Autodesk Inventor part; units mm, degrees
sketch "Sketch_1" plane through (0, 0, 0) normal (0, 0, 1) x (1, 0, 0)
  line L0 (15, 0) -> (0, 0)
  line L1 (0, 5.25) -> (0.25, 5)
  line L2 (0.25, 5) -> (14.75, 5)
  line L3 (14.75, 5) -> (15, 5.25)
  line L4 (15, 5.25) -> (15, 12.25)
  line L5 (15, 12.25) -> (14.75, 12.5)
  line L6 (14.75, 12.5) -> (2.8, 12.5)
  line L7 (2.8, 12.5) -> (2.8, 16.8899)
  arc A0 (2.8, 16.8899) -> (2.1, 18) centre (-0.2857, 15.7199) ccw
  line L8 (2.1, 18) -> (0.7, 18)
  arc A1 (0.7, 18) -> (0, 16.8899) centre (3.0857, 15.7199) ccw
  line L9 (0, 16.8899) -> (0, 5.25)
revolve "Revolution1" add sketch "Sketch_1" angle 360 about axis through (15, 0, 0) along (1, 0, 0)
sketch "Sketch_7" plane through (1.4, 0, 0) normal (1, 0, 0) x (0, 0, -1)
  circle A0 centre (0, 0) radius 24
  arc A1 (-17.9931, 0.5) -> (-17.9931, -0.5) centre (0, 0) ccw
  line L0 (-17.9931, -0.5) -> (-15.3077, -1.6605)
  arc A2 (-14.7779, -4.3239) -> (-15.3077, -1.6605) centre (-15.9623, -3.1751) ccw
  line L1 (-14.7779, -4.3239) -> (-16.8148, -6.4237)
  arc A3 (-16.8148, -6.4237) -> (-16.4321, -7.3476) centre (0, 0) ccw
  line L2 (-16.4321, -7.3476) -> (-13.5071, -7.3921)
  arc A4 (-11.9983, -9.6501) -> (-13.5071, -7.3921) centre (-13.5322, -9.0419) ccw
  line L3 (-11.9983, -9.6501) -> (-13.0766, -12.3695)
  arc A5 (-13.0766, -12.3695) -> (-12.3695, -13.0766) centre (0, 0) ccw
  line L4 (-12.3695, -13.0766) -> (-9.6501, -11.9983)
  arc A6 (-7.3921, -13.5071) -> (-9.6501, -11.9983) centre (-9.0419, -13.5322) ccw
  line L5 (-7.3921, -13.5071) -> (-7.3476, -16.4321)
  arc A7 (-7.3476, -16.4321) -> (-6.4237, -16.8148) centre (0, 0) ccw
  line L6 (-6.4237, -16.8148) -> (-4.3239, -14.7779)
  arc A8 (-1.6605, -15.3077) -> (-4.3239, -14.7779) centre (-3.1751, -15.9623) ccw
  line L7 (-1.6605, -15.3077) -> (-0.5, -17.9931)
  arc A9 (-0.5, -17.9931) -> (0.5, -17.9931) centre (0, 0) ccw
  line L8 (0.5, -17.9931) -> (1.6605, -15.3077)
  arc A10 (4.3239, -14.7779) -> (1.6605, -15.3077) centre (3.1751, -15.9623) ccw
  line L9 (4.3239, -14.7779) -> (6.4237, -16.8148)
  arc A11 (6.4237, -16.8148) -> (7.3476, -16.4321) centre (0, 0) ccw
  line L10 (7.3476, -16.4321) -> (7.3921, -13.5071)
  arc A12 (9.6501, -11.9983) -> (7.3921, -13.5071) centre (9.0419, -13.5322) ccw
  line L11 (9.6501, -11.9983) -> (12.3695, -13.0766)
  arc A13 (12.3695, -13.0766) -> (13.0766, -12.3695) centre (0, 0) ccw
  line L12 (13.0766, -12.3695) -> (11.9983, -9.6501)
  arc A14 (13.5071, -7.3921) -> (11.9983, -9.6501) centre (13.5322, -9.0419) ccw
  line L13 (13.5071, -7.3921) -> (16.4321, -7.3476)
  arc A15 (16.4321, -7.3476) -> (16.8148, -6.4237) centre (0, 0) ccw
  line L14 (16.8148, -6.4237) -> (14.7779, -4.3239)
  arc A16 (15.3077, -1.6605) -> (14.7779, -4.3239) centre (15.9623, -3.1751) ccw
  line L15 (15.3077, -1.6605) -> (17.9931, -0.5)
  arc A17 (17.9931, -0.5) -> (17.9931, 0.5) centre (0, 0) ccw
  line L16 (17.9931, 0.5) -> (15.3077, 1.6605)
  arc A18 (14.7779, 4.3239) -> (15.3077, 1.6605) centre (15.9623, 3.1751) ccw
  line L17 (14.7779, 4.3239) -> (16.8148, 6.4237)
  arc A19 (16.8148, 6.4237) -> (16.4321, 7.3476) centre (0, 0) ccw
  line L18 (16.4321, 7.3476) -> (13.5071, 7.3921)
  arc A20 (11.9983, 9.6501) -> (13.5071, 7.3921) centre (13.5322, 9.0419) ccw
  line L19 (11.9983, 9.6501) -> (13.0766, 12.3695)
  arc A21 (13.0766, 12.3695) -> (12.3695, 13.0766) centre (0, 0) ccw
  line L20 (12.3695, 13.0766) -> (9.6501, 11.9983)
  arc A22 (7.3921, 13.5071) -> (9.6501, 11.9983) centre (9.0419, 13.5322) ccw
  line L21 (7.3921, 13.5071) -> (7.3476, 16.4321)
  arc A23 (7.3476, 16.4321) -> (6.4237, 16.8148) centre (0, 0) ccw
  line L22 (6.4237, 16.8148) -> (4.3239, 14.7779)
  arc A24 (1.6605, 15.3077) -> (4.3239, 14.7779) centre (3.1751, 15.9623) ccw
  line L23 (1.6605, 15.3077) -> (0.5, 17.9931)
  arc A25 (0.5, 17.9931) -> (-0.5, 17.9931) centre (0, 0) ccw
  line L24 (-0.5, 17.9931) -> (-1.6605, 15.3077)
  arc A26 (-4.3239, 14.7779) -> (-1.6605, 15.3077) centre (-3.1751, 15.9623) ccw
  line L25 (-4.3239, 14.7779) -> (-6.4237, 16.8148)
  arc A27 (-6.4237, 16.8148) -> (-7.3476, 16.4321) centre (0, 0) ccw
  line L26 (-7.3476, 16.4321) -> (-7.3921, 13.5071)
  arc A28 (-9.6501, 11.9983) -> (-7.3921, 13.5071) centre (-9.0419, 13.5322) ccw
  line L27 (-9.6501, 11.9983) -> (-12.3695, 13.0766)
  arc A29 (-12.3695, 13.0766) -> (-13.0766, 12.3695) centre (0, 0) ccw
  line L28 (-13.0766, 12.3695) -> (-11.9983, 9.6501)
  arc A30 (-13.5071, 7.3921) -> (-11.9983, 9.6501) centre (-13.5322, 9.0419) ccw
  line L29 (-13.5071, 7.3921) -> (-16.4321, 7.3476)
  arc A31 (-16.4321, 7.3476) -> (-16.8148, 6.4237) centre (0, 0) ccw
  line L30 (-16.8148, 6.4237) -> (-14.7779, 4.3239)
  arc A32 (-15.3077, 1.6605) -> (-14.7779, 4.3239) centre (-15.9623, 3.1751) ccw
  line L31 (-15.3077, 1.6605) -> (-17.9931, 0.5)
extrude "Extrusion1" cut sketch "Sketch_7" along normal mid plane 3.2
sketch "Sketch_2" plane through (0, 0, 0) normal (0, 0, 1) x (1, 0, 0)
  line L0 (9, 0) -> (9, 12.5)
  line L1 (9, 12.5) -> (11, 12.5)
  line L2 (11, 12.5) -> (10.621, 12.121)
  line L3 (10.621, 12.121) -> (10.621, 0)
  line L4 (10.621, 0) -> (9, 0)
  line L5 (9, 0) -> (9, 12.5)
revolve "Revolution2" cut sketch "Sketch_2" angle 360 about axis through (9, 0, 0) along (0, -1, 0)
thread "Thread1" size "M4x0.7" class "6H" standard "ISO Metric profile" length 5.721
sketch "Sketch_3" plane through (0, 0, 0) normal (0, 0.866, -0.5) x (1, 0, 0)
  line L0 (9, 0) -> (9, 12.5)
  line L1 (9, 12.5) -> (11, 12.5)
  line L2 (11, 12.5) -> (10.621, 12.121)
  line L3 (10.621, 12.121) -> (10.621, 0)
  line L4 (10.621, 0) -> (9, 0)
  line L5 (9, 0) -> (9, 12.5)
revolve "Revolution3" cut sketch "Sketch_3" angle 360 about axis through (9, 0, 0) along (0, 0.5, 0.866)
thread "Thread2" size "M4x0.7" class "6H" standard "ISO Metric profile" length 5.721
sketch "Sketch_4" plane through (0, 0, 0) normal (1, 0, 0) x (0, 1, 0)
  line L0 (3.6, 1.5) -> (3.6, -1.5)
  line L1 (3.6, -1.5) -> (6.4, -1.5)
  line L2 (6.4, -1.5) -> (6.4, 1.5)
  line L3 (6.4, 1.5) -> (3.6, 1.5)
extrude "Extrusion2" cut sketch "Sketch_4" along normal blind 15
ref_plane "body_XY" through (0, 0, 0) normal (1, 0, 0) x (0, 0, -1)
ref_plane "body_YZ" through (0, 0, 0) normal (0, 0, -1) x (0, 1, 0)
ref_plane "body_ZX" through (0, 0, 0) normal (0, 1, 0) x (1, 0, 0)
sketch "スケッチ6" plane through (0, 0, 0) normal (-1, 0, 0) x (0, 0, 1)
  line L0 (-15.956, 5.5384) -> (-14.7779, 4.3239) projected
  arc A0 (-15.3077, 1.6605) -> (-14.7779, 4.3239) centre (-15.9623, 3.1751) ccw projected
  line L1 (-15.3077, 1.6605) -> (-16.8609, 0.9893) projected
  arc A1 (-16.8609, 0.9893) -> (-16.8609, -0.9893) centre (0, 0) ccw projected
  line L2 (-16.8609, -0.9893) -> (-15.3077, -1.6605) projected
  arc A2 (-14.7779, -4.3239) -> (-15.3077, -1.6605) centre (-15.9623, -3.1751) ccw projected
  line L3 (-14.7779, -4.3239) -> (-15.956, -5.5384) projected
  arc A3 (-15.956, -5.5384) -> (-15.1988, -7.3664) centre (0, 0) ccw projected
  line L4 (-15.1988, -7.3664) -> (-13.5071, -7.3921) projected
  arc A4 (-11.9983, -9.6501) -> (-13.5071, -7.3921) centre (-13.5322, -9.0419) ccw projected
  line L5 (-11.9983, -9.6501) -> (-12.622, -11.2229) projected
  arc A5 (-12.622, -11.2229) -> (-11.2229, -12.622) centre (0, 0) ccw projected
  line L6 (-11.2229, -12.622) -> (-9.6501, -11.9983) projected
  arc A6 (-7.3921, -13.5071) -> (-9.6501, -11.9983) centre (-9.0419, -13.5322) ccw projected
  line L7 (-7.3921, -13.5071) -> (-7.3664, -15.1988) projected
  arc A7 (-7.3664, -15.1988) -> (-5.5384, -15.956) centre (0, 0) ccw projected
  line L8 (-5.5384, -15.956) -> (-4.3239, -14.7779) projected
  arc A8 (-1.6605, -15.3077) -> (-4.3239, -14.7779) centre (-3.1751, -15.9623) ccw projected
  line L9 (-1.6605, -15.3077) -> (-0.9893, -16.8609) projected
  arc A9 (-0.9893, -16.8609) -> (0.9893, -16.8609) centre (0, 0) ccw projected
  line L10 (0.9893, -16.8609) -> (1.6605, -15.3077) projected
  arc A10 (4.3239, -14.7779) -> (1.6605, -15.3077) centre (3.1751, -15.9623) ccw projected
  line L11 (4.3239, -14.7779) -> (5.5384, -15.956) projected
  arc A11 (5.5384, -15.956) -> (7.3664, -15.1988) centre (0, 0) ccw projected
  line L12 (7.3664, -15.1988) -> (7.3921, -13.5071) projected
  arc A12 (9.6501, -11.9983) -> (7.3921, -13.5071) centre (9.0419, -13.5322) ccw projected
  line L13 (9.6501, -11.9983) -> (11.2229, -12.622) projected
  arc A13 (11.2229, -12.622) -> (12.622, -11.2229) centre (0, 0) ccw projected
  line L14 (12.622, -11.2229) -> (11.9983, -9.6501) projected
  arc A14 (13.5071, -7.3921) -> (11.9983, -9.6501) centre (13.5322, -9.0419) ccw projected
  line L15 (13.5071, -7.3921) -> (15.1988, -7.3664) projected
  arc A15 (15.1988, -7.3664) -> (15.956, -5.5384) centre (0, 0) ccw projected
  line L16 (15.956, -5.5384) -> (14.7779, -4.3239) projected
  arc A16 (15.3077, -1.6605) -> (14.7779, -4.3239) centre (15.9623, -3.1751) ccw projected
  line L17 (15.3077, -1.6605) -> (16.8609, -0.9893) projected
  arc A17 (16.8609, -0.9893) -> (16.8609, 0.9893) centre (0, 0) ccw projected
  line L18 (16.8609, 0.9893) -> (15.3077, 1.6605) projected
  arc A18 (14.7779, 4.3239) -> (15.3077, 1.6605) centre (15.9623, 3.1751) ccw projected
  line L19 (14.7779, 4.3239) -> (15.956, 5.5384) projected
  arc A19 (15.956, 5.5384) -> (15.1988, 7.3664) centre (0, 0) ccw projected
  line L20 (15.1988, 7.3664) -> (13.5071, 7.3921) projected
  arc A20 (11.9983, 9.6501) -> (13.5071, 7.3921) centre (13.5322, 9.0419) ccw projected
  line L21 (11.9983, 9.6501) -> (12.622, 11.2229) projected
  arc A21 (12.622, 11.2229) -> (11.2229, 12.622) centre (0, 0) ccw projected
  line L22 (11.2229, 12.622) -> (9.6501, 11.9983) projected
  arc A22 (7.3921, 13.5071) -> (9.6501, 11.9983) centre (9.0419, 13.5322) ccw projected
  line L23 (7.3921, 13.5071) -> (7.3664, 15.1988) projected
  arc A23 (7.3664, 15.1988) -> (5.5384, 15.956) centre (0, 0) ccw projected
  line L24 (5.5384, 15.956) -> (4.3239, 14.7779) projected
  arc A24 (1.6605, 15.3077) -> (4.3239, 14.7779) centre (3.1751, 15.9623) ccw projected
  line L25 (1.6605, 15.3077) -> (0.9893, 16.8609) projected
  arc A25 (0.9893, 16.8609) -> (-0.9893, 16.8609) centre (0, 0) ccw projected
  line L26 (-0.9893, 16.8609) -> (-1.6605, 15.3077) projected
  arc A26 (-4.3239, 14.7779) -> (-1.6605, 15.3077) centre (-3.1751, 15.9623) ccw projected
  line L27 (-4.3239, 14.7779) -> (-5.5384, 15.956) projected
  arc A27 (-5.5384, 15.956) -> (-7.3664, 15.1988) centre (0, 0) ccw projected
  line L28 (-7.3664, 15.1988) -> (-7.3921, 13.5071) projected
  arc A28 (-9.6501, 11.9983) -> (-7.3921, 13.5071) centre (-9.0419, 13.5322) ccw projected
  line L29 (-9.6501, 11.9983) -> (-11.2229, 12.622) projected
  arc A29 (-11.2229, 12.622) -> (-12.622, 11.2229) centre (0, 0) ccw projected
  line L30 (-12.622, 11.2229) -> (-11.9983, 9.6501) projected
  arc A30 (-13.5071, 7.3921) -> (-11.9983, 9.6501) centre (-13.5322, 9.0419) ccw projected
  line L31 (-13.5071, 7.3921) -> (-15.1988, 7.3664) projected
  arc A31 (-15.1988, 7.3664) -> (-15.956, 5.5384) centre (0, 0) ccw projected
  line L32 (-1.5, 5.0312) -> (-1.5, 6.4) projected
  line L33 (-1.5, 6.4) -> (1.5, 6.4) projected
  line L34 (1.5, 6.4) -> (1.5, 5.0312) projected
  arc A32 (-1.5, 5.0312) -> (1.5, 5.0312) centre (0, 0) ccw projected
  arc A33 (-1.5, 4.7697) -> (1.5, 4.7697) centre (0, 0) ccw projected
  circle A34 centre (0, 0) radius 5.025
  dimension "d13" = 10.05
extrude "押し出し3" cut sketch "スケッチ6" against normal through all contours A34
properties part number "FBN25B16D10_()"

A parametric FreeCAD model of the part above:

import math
import FreeCAD as App
import Part
import Sketcher

V = App.Vector
Q = App.Units.Quantity


def add_polygon(sketch, points):
    """Adds a closed chain of lines whose ends are joined by coincident constraints."""
    first, n = sketch.GeometryCount, len(points)
    for a, b in zip(points, points[1:] + points[:1]):
        sketch.addGeometry(Part.LineSegment(App.Vector(*a, 0), App.Vector(*b, 0)), False)
    for i in range(n):
        sketch.addConstraint(Sketcher.Constraint("Coincident", first + i, 2, first + (i + 1) % n, 1))

doc = App.newDocument("Part")
body = doc.addObject("PartDesign::Body", "Body")

sketch1 = body.newObject("Sketcher::SketchObject", "Sketch")
sketch1.AttachmentSupport = (doc.getObject("XY_Plane"), [""])
sketch1.MapMode = "FlatFace"
sketch1.addGeometry([
    Part.LineSegment(V(0, 16.89, 0), V(0, 5.25, 0)),
    Part.LineSegment(V(0, 5.25, 0), V(0.25, 5, 0)),
    Part.LineSegment(V(0.25, 5, 0), V(14.75, 5, 0)),
    Part.LineSegment(V(14.75, 5, 0), V(15, 5.25, 0)),
    Part.LineSegment(V(15, 5.25, 0), V(15, 12.25, 0)),
    Part.LineSegment(V(15, 12.25, 0), V(14.75, 12.5, 0)),
    Part.LineSegment(V(14.75, 12.5, 0), V(2.8, 12.5, 0)),
    Part.LineSegment(V(2.8, 12.5, 0), V(2.8, 16.89, 0)),
    Part.ArcOfCircle(Part.Circle(V(-0.29, 15.72, 0), V(0, 0, 1), 3.3), math.radians(21), math.radians(44)),
    Part.LineSegment(V(2.1, 18, 0), V(0.7, 18, 0)),
    Part.ArcOfCircle(Part.Circle(V(3.09, 15.72, 0), V(0, 0, 1), 3.3), math.radians(136), math.radians(159)),
], False)
sketch1.addConstraint([
    Sketcher.Constraint("Coincident", 0, 2, 1, 1),
    Sketcher.Constraint("Coincident", 1, 2, 2, 1),
    Sketcher.Constraint("Coincident", 2, 2, 3, 1),
    Sketcher.Constraint("Coincident", 3, 2, 4, 1),
    Sketcher.Constraint("Coincident", 4, 2, 5, 1),
    Sketcher.Constraint("Coincident", 5, 2, 6, 1),
    Sketcher.Constraint("Coincident", 6, 2, 7, 1),
    Sketcher.Constraint("Coincident", 7, 2, 8, 1),
    Sketcher.Constraint("Coincident", 8, 2, 9, 1),
    Sketcher.Constraint("Coincident", 9, 2, 10, 1),
    Sketcher.Constraint("Coincident", 10, 2, 0, 1),
    Sketcher.Constraint("Vertical", 0),
    Sketcher.Constraint("Horizontal", 2),
    Sketcher.Constraint("Vertical", 4),
    Sketcher.Constraint("Horizontal", 6),
    Sketcher.Constraint("Vertical", 7),
    Sketcher.Constraint("Horizontal", 9),
    Sketcher.Constraint("Equal", 8, 10),
    Sketcher.Constraint("PointOnObject", 0, 2, -2),
    Sketcher.Constraint("Perpendicular", 1, 3),
    Sketcher.Constraint("Perpendicular", 3, 5),
    Sketcher.Constraint("Horizontal", 8, 3, 10, 3),
    Sketcher.Constraint("Horizontal", 0, 2, 3, 2),
    Sketcher.Constraint("Horizontal", 7, 2, 10, 2),
    Sketcher.Constraint("Vertical", 2, 2, 5, 2),
    Sketcher.Constraint("Equal", 1, 3),
    Sketcher.Constraint("Radius", 8, Q("3.3 mm")),
    Sketcher.Constraint("DistanceY", 4, 1, 4, 2, Q("7 mm")),
    Sketcher.Constraint("DistanceX", 2, 1, 2, 2, Q("14.5 mm")),
    Sketcher.Constraint("DistanceX", 9, 2, 9, 1, Q("1.4 mm")),
    Sketcher.Constraint("DistanceY", -1, 1, 1, 2, Q("5 mm")),
    Sketcher.Constraint("DistanceX", -1, 1, 3, 2, Q("15 mm")),
    Sketcher.Constraint("DistanceY", -1, 1, 8, 2, Q("18 mm")),
    Sketcher.Constraint("DistanceX", 6, 2, 6, 1, Q("11.95 mm")),
    Sketcher.Constraint("DistanceY", 0, 2, 0, 1, Q("11.64 mm")),
])
revolution = body.newObject("PartDesign::Revolution", "Revolution")
revolution.Profile = sketch1
revolution.ReferenceAxis = (sketch1, ["H_Axis"])
revolution.Angle = 360

sketch2 = body.newObject("Sketcher::SketchObject", "Sketch001")
sketch2.AttachmentSupport = (doc.getObject("YZ_Plane"), [""])
sketch2.MapMode = "FlatFace"
sketch2.AttachmentOffset = App.Placement(V(0, 0, 1.4), App.Rotation())
sketch2.addGeometry([
    Part.Circle(V(0, 0, 0), V(0, 0, 1), 24),
    Part.ArcOfCircle(Part.Circle(V(0, 0, 0), V(0, 0, 1), 18.000046), math.radians(88.40825), math.radians(91.59175)),
    Part.LineSegment(V(0.5, 17.9931, 0), V(1.6605, 15.3077, 0)),
    Part.ArcOfCircle(Part.Circle(V(3.1751, 15.9623, 0), V(0, 0, 1), 1.650004), math.radians(-156.626322), math.radians(-45.874152)),
    Part.LineSegment(V(4.3239, 14.7779, 0), V(6.4237, 16.8148, 0)),
    Part.ArcOfCircle(Part.Circle(V(-0.004053, -0.009413, 0), V(0, 0, 1), 18.010279), math.radians(65.908686), math.radians(69.090457)),
    Part.LineSegment(V(7.3476, 16.4321, 0), V(7.3921, 13.5071, 0)),
    Part.ArcOfCircle(Part.Circle(V(9.0419, 13.5322, 0), V(0, 0, 1), 1.649991), math.radians(-179.128371), math.radians(-68.371395)),
    Part.LineSegment(V(9.6501, 11.9983, 0), V(12.3695, 13.0766, 0)),
    Part.ArcOfCircle(Part.Circle(V(0, 0, 0), V(0, 0, 1), 18.000055), math.radians(43.408266), math.radians(46.591734)),
    Part.LineSegment(V(13.0766, 12.3695, 0), V(11.9983, 9.6501, 0)),
    Part.ArcOfCircle(Part.Circle(V(13.5322, 9.0419, 0), V(0, 0, 1), 1.650078), math.radians(158.371395), math.radians(269.128371)),
    Part.LineSegment(V(13.5071, 7.3921, 0), V(16.4321, 7.3476, 0)),
    Part.ArcOfCircle(Part.Circle(V(0.009511, 0.003786, 0), V(0, 0, 1), 17.989804), math.radians(20.907731), math.radians(24.093125)),
    Part.LineSegment(V(16.8148, 6.4237, 0), V(14.7779, 4.3239, 0)),
    Part.ArcOfCircle(Part.Circle(V(15.9623, 3.1751, 0), V(0, 0, 1), 1.650014), math.radians(135.874152), math.radians(246.626322)),
    Part.LineSegment(V(15.3077, 1.6605, 0), V(17.9931, 0.5, 0)),
    Part.ArcOfCircle(Part.Circle(V(0, 0, 0), V(0, 0, 1), 18.000046), math.radians(-1.59175), math.radians(1.59175)),
    Part.LineSegment(V(17.9931, -0.5, 0), V(15.3077, -1.6605, 0)),
    Part.ArcOfCircle(Part.Circle(V(15.9623, -3.1751, 0), V(0, 0, 1), 1.650004), math.radians(113.373678), math.radians(224.125848)),
    Part.LineSegment(V(14.7779, -4.3239, 0), V(16.8148, -6.4237, 0)),
    Part.ArcOfCircle(Part.Circle(V(-0.009413, 0.004053, 0), V(0, 0, 1), 18.010279), math.radians(-24.091314), math.radians(-20.909543)),
    Part.LineSegment(V(16.4321, -7.3476, 0), V(13.5071, -7.3921, 0)),
    Part.ArcOfCircle(Part.Circle(V(13.5322, -9.0419, 0), V(0, 0, 1), 1.649991), math.radians(90.871629), math.radians(201.628605)),
    Part.LineSegment(V(11.9983, -9.6501, 0), V(13.0766, -12.3695, 0)),
    Part.ArcOfCircle(Part.Circle(V(0, 0, 0), V(0, 0, 1), 18.000055), math.radians(-46.591734), math.radians(-43.408266)),
    Part.LineSegment(V(12.3695, -13.0766, 0), V(9.6501, -11.9983, 0)),
    Part.ArcOfCircle(Part.Circle(V(9.0419, -13.5322, 0), V(0, 0, 1), 1.650078), math.radians(68.371395), math.radians(179.128371)),
    Part.LineSegment(V(7.3921, -13.5071, 0), V(7.3476, -16.4321, 0)),
    Part.ArcOfCircle(Part.Circle(V(0.003786, -0.009511, 0), V(0, 0, 1), 17.989804), math.radians(-69.092269), math.radians(-65.906875)),
    Part.LineSegment(V(6.4237, -16.8148, 0), V(4.3239, -14.7779, 0)),
    Part.ArcOfCircle(Part.Circle(V(3.1751, -15.9623, 0), V(0, 0, 1), 1.650014), math.radians(45.874152), math.radians(156.626322)),
    Part.LineSegment(V(1.6605, -15.3077, 0), V(0.5, -17.9931, 0)),
    Part.ArcOfCircle(Part.Circle(V(0, 0, 0), V(0, 0, 1), 18.000046), math.radians(-91.59175), math.radians(-88.40825)),
    Part.LineSegment(V(-0.5, -17.9931, 0), V(-1.6605, -15.3077, 0)),
    Part.ArcOfCircle(Part.Circle(V(-3.1751, -15.9623, 0), V(0, 0, 1), 1.650004), math.radians(23.373678), math.radians(134.125848)),
    Part.LineSegment(V(-4.3239, -14.7779, 0), V(-6.4237, -16.8148, 0)),
    Part.ArcOfCircle(Part.Circle(V(0.004053, 0.009413, 0), V(0, 0, 1), 18.010279), math.radians(-114.091314), math.radians(-110.909543)),
    Part.LineSegment(V(-7.3476, -16.4321, 0), V(-7.3921, -13.5071, 0)),
    Part.ArcOfCircle(Part.Circle(V(-9.0419, -13.5322, 0), V(0, 0, 1), 1.649991), math.radians(0.871629), math.radians(111.628605)),
    Part.LineSegment(V(-9.6501, -11.9983, 0), V(-12.3695, -13.0766, 0)),
    Part.ArcOfCircle(Part.Circle(V(0, 0, 0), V(0, 0, 1), 18.000055), math.radians(-136.591734), math.radians(-133.408266)),
    Part.LineSegment(V(-13.0766, -12.3695, 0), V(-11.9983, -9.6501, 0)),
    Part.ArcOfCircle(Part.Circle(V(-13.5322, -9.0419, 0), V(0, 0, 1), 1.650078), math.radians(-21.628605), math.radians(89.128371)),
    Part.LineSegment(V(-13.5071, -7.3921, 0), V(-16.4321, -7.3476, 0)),
    Part.ArcOfCircle(Part.Circle(V(-0.009511, -0.003786, 0), V(0, 0, 1), 17.989804), math.radians(-159.092269), math.radians(-155.906875)),
    Part.LineSegment(V(-16.8148, -6.4237, 0), V(-14.7779, -4.3239, 0)),
    Part.ArcOfCircle(Part.Circle(V(-15.9623, -3.1751, 0), V(0, 0, 1), 1.650014), math.radians(-44.125848), math.radians(66.626322)),
    Part.LineSegment(V(-15.3077, -1.6605, 0), V(-17.9931, -0.5, 0)),
    Part.ArcOfCircle(Part.Circle(V(0, 0, 0), V(0, 0, 1), 18.000046), math.radians(178.40825), math.radians(181.59175)),
    Part.LineSegment(V(-17.9931, 0.5, 0), V(-15.3077, 1.6605, 0)),
    Part.ArcOfCircle(Part.Circle(V(-15.9623, 3.1751, 0), V(0, 0, 1), 1.650004), math.radians(-66.626322), math.radians(44.125848)),
    Part.LineSegment(V(-14.7779, 4.3239, 0), V(-16.8148, 6.4237, 0)),
    Part.ArcOfCircle(Part.Circle(V(0.009413, -0.004053, 0), V(0, 0, 1), 18.010279), math.radians(155.908686), math.radians(159.090457)),
    Part.LineSegment(V(-16.4321, 7.3476, 0), V(-13.5071, 7.3921, 0)),
    Part.ArcOfCircle(Part.Circle(V(-13.5322, 9.0419, 0), V(0, 0, 1), 1.649991), math.radians(-89.128371), math.radians(21.628605)),
    Part.LineSegment(V(-11.9983, 9.6501, 0), V(-13.0766, 12.3695, 0)),
    Part.ArcOfCircle(Part.Circle(V(0, 0, 0), V(0, 0, 1), 18.000055), math.radians(133.408266), math.radians(136.591734)),
    Part.LineSegment(V(-12.3695, 13.0766, 0), V(-9.6501, 11.9983, 0)),
    Part.ArcOfCircle(Part.Circle(V(-9.0419, 13.5322, 0), V(0, 0, 1), 1.650078), math.radians(-111.628605), math.radians(-0.871629)),
    Part.LineSegment(V(-7.3921, 13.5071, 0), V(-7.3476, 16.4321, 0)),
    Part.ArcOfCircle(Part.Circle(V(-0.003786, 0.009511, 0), V(0, 0, 1), 17.989804), math.radians(110.907731), math.radians(114.093125)),
    Part.LineSegment(V(-6.4237, 16.8148, 0), V(-4.3239, 14.7779, 0)),
    Part.ArcOfCircle(Part.Circle(V(-3.1751, 15.9623, 0), V(0, 0, 1), 1.650014), math.radians(-134.125848), math.radians(-23.373678)),
    Part.LineSegment(V(-1.6605, 15.3077, 0), V(-0.5, 17.9931, 0)),
], False)
sketch2.addConstraint([
    Sketcher.Constraint("Coincident", 1, 1, 2, 1),
    Sketcher.Constraint("Tangent", 2, 2, 3, 1),
    Sketcher.Constraint("Tangent", 3, 2, 4, 1),
    Sketcher.Constraint("Coincident", 4, 2, 5, 2),
    Sketcher.Constraint("Coincident", 5, 1, 6, 1),
    Sketcher.Constraint("Tangent", 6, 2, 7, 1),
    Sketcher.Constraint("Tangent", 7, 2, 8, 1),
    Sketcher.Constraint("Coincident", 8, 2, 9, 2),
    Sketcher.Constraint("Coincident", 9, 1, 10, 1),
    Sketcher.Constraint("Tangent", 10, 2, 11, 1),
    Sketcher.Constraint("Tangent", 11, 2, 12, 1),
    Sketcher.Constraint("Coincident", 12, 2, 13, 2),
    Sketcher.Constraint("Coincident", 13, 1, 14, 1),
    Sketcher.Constraint("Tangent", 14, 2, 15, 1),
    Sketcher.Constraint("Tangent", 15, 2, 16, 1),
    Sketcher.Constraint("Coincident", 16, 2, 17, 2),
    Sketcher.Constraint("Coincident", 17, 1, 18, 1),
    Sketcher.Constraint("Tangent", 18, 2, 19, 1),
    Sketcher.Constraint("Tangent", 19, 2, 20, 1),
    Sketcher.Constraint("Coincident", 20, 2, 21, 2),
    Sketcher.Constraint("Coincident", 21, 1, 22, 1),
    Sketcher.Constraint("Tangent", 22, 2, 23, 1),
    Sketcher.Constraint("Tangent", 23, 2, 24, 1),
    Sketcher.Constraint("Coincident", 24, 2, 25, 2),
    Sketcher.Constraint("Coincident", 25, 1, 26, 1),
    Sketcher.Constraint("Tangent", 26, 2, 27, 1),
    Sketcher.Constraint("Tangent", 27, 2, 28, 1),
    Sketcher.Constraint("Coincident", 28, 2, 29, 2),
    Sketcher.Constraint("Coincident", 29, 1, 30, 1),
    Sketcher.Constraint("Tangent", 30, 2, 31, 1),
    Sketcher.Constraint("Tangent", 31, 2, 32, 1),
    Sketcher.Constraint("Coincident", 32, 2, 33, 2),
    Sketcher.Constraint("Coincident", 33, 1, 34, 1),
    Sketcher.Constraint("Tangent", 34, 2, 35, 1),
    Sketcher.Constraint("Tangent", 35, 2, 36, 1),
    Sketcher.Constraint("Coincident", 36, 2, 37, 2),
    Sketcher.Constraint("Coincident", 37, 1, 38, 1),
    Sketcher.Constraint("Tangent", 38, 2, 39, 1),
    Sketcher.Constraint("Tangent", 39, 2, 40, 1),
    Sketcher.Constraint("Coincident", 40, 2, 41, 2),
    Sketcher.Constraint("Coincident", 41, 1, 42, 1),
    Sketcher.Constraint("Tangent", 42, 2, 43, 1),
    Sketcher.Constraint("Tangent", 43, 2, 44, 1),
    Sketcher.Constraint("Coincident", 44, 2, 45, 2),
    Sketcher.Constraint("Coincident", 45, 1, 46, 1),
    Sketcher.Constraint("Tangent", 46, 2, 47, 1),
    Sketcher.Constraint("Tangent", 47, 2, 48, 1),
    Sketcher.Constraint("Coincident", 48, 2, 49, 2),
    Sketcher.Constraint("Coincident", 49, 1, 50, 1),
    Sketcher.Constraint("Tangent", 50, 2, 51, 1),
    Sketcher.Constraint("Tangent", 51, 2, 52, 1),
    Sketcher.Constraint("Coincident", 52, 2, 53, 2),
    Sketcher.Constraint("Coincident", 53, 1, 54, 1),
    Sketcher.Constraint("Tangent", 54, 2, 55, 1),
    Sketcher.Constraint("Tangent", 55, 2, 56, 1),
    Sketcher.Constraint("Coincident", 56, 2, 57, 2),
    Sketcher.Constraint("Coincident", 57, 1, 58, 1),
    Sketcher.Constraint("Tangent", 58, 2, 59, 1),
    Sketcher.Constraint("Tangent", 59, 2, 60, 1),
    Sketcher.Constraint("Coincident", 60, 2, 61, 2),
    Sketcher.Constraint("Coincident", 61, 1, 62, 1),
    Sketcher.Constraint("Tangent", 62, 2, 63, 1),
    Sketcher.Constraint("Tangent", 63, 2, 64, 1),
    Sketcher.Constraint("Coincident", 64, 2, 1, 2),
    Sketcher.Constraint("Coincident", 0, 3, -1, 1),
    Sketcher.Constraint("Coincident", 1, 3, -1, 1),
    Sketcher.Constraint("Coincident", 9, 3, -1, 1),
    Sketcher.Constraint("Coincident", 17, 3, -1, 1),
    Sketcher.Constraint("Coincident", 25, 3, -1, 1),
    Sketcher.Constraint("Coincident", 33, 3, -1, 1),
    Sketcher.Constraint("Coincident", 41, 3, -1, 1),
    Sketcher.Constraint("Coincident", 49, 3, -1, 1),
    Sketcher.Constraint("Coincident", 57, 3, -1, 1),
    Sketcher.Constraint("Equal", 3, 7),
    Sketcher.Constraint("Equal", 1, 9),
    Sketcher.Constraint("Equal", 7, 11),
    Sketcher.Constraint("Equal", 11, 15),
    Sketcher.Constraint("Equal", 9, 17),
    Sketcher.Constraint("Equal", 15, 19),
    Sketcher.Constraint("Equal", 5, 21),
    Sketcher.Constraint("Equal", 19, 23),
    Sketcher.Constraint("Equal", 17, 25),
    Sketcher.Constraint("Equal", 23, 27),
    Sketcher.Constraint("Equal", 13, 29),
    Sketcher.Constraint("Equal", 27, 31),
    Sketcher.Constraint("Equal", 25, 33),
    Sketcher.Constraint("Equal", 31, 35),
    Sketcher.Constraint("Equal", 21, 37),
    Sketcher.Constraint("Equal", 35, 39),
    Sketcher.Constraint("Equal", 33, 41),
    Sketcher.Constraint("Equal", 39, 43),
    Sketcher.Constraint("Equal", 29, 45),
    Sketcher.Constraint("Equal", 43, 47),
    Sketcher.Constraint("Equal", 41, 49),
    Sketcher.Constraint("Equal", 47, 51),
    Sketcher.Constraint("Equal", 37, 53),
    Sketcher.Constraint("Equal", 51, 55),
    Sketcher.Constraint("Equal", 49, 57),
    Sketcher.Constraint("Equal", 55, 59),
    Sketcher.Constraint("Equal", 45, 61),
    Sketcher.Constraint("Equal", 59, 63),
    Sketcher.Constraint("Symmetric", 3, 3, 35, 3, -1, 1),
    Sketcher.Constraint("Symmetric", 5, 3, 37, 3, -1, 1),
    Sketcher.Constraint("Symmetric", 7, 3, 39, 3, -1, 1),
    Sketcher.Constraint("Symmetric", 11, 3, 43, 3, -1, 1),
    Sketcher.Constraint("Symmetric", 13, 3, 45, 3, -1, 1),
    Sketcher.Constraint("Symmetric", 15, 3, 47, 3, -1, 1),
    Sketcher.Constraint("Symmetric", 19, 3, 51, 3, -1, 1),
    Sketcher.Constraint("Symmetric", 21, 3, 53, 3, -1, 1),
    Sketcher.Constraint("Symmetric", 23, 3, 55, 3, -1, 1),
    Sketcher.Constraint("Symmetric", 27, 3, 59, 3, -1, 1),
    Sketcher.Constraint("Symmetric", 29, 3, 61, 3, -1, 1),
    Sketcher.Constraint("Symmetric", 31, 3, 63, 3, -1, 1),
    Sketcher.Constraint("Symmetric", 13, 3, 21, 3, -2),
    Sketcher.Constraint("Symmetric", 5, 3, 29, 3, -2),
    Sketcher.Constraint("Symmetric", 31, 3, 35, 3, -2),
    Sketcher.Constraint("Symmetric", 27, 3, 39, 3, -2),
    Sketcher.Constraint("Symmetric", 23, 3, 43, 3, -2),
    Sketcher.Constraint("Symmetric", 19, 3, 47, 3, -2),
    Sketcher.Constraint("Symmetric", 29, 1, 36, 2, -2),
    Sketcher.Constraint("Symmetric", 28, 2, 37, 1, -2),
    Sketcher.Constraint("Symmetric", 21, 1, 44, 2, -2),
    Sketcher.Constraint("Symmetric", 20, 2, 45, 1, -2),
    Sketcher.Constraint("Perpendicular", 2, 18),
    Sketcher.Constraint("Perpendicular", 4, 20),
    Sketcher.Constraint("Perpendicular", 6, 22),
    Sketcher.Constraint("Perpendicular", 8, 24),
    Sketcher.Constraint("Perpendicular", 10, 26),
    Sketcher.Constraint("Perpendicular", 12, 28),
    Sketcher.Constraint("Perpendicular", 14, 30),
    Sketcher.Constraint("Perpendicular", 16, 32),
    Sketcher.Constraint("Perpendicular", 18, 34),
    Sketcher.Constraint("Perpendicular", 20, 36),
    Sketcher.Constraint("Perpendicular", 22, 38),
    Sketcher.Constraint("Perpendicular", 24, 40),
    Sketcher.Constraint("Perpendicular", 26, 42),
    Sketcher.Constraint("Perpendicular", 32, 48),
    Sketcher.Constraint("Perpendicular", 34, 50),
    Sketcher.Constraint("Perpendicular", 36, 52),
    Sketcher.Constraint("Perpendicular", 38, 54),
    Sketcher.Constraint("Perpendicular", 40, 56),
    Sketcher.Constraint("Perpendicular", 42, 58),
    Sketcher.Constraint("Perpendicular", 44, 60),
    Sketcher.Constraint("Perpendicular", 46, 62),
    Sketcher.Constraint("Perpendicular", 48, 64),
    Sketcher.Constraint("Horizontal", 32, 2, 33, 1),
    Sketcher.Constraint("Horizontal", 26, 2, 39, 2),
    Sketcher.Constraint("Equal", 2, 4),
    Sketcher.Constraint("Equal", 4, 6),
    Sketcher.Constraint("Equal", 6, 8),
    Sketcher.Constraint("Equal", 8, 10),
    Sketcher.Constraint("Equal", 10, 12),
    Sketcher.Constraint("Equal", 12, 14),
    Sketcher.Constraint("Equal", 14, 16),
    Sketcher.Constraint("Diameter", 0, Q("48 mm")),
    Sketcher.Constraint("Radius", 1, Q("18 mm")),
    Sketcher.Constraint("Radius", 3, Q("1.65 mm")),
    Sketcher.Constraint("DistanceX", -1, 1, 1, 1, Q("0.5 mm")),
    Sketcher.Constraint("Angle", 4, Q("44.1289 deg")),
    Sketcher.Constraint("Angle", 8, Q("21.6294 deg")),
    Sketcher.Constraint("Radius", 5, Q("18.0103 mm")),
    Sketcher.Constraint("Radius", 13, Q("17.9898 mm")),
    Sketcher.Constraint("DistanceX", -1, 1, 7, 2, Q("9.65 mm")),
    Sketcher.Constraint("DistanceX", -1, 1, 3, 3, Q("3.175 mm")),
])
pocket1 = body.newObject("PartDesign::Pocket", "Pocket")
pocket1.Profile = sketch2
pocket1.Length = 3.2
pocket1.Midplane = True

sketch3 = body.newObject("Sketcher::SketchObject", "Sketch002")
sketch3.AttachmentSupport = (doc.getObject("XY_Plane"), [""])
sketch3.MapMode = "FlatFace"
add_polygon(sketch3, [(9, 12.5), (9, 0), (10.6, 0), (10.6, 12.1), (11, 12.5)])
sketch3.addGeometry(Part.LineSegment(V(9, 12.5, 0), V(9, 0, 0)), True)
sketch3.addConstraint([
    Sketcher.Constraint("Vertical", 0),
    Sketcher.Constraint("Horizontal", 1),
    Sketcher.Constraint("Vertical", 2),
    Sketcher.Constraint("Horizontal", 4),
    Sketcher.Constraint("Vertical", 5),
    Sketcher.Constraint("Coincident", 5, 1, 4, 2),
    Sketcher.Constraint("PointOnObject", 0, 2, -1),
    Sketcher.Constraint("PointOnObject", 5, 2, -1),
    Sketcher.Constraint("DistanceX", 4, 2, 4, 1, Q("2 mm")),
    Sketcher.Constraint("Angle", 3, Q("45 deg")),
    Sketcher.Constraint("DistanceY", 0, 2, 0, 1, Q("12.5 mm")),
    Sketcher.Constraint("DistanceX", -1, 1, 0, 2, Q("9 mm")),
    Sketcher.Constraint("DistanceX", 1, 1, 1, 2, Q("1.621 mm")),
])
groove = body.newObject("PartDesign::Groove", "Groove")
groove.Profile = sketch3
groove.ReferenceAxis = (sketch3, ["Axis0"])
groove.Angle = 360

sketch4 = body.newObject("Sketcher::SketchObject", "Sketch003")
sketch4.Placement = App.Placement(V(0, 0, 0), App.Rotation(V(1, 0, 0), V(0, -0.5, -0.866025404), V(0, 0.866025404, -0.5), "ZXY"))
add_polygon(sketch4, [(9, 12.5), (9, 0), (10.6, 0), (10.6, 12.1), (11, 12.5)])
sketch4.addGeometry(Part.LineSegment(V(9, 12.5, 0), V(9, 0, 0)), True)
sketch4.addConstraint([
    Sketcher.Constraint("Vertical", 0),
    Sketcher.Constraint("Horizontal", 1),
    Sketcher.Constraint("Vertical", 2),
    Sketcher.Constraint("Horizontal", 4),
    Sketcher.Constraint("Vertical", 5),
    Sketcher.Constraint("Coincident", 5, 1, 4, 2),
    Sketcher.Constraint("PointOnObject", 0, 2, -1),
    Sketcher.Constraint("PointOnObject", 5, 2, -1),
    Sketcher.Constraint("DistanceX", 4, 2, 4, 1, Q("2 mm")),
    Sketcher.Constraint("Angle", 3, Q("45 deg")),
    Sketcher.Constraint("DistanceY", 0, 2, 0, 1, Q("12.5 mm")),
    Sketcher.Constraint("DistanceX", -1, 1, 0, 2, Q("9 mm")),
    Sketcher.Constraint("DistanceX", 1, 1, 1, 2, Q("1.621 mm")),
])
groove2 = body.newObject("PartDesign::Groove", "Groove001")
groove2.Profile = sketch4
groove2.ReferenceAxis = (sketch4, ["Axis0"])
groove2.Angle = 360

sketch5 = body.newObject("Sketcher::SketchObject", "Sketch004")
sketch5.AttachmentSupport = (doc.getObject("YZ_Plane"), [""])
sketch5.MapMode = "FlatFace"
add_polygon(sketch5, [(6.4, 1.5), (3.6, 1.5), (3.6, -1.5), (6.4, -1.5)])
sketch5.addConstraint([
    Sketcher.Constraint("Horizontal", 0),
    Sketcher.Constraint("Vertical", 1),
    Sketcher.Constraint("Horizontal", 2),
    Sketcher.Constraint("Vertical", 3),
    Sketcher.Constraint("DistanceY", 1, 2, 1, 1, Q("3 mm")),
    Sketcher.Constraint("DistanceX", 0, 2, 0, 1, Q("2.8 mm")),
    Sketcher.Constraint("DistanceX", -1, 1, 0, 2, Q("3.6 mm")),
    Sketcher.Constraint("DistanceY", -1, 1, 0, 2, Q("1.5 mm")),
])
pocket2 = body.newObject("PartDesign::Pocket", "Pocket001")
pocket2.Profile = sketch5
pocket2.Length = 15
pocket2.Reversed = True

sketch6 = body.newObject("Sketcher::SketchObject", "Sketch005")
sketch6.AttachmentSupport = (doc.getObject("YZ_Plane"), [""])
sketch6.MapMode = "FlatFace"
sketch6.addGeometry(Part.Circle(V(0, 0, 0), V(0, 0, 1), 5), False)
sketch6.addConstraint([
    Sketcher.Constraint("Coincident", 0, 3, -1, 1),
    Sketcher.Constraint("Diameter", 0, Q("10.05 mm")),
])
pocket3 = body.newObject("PartDesign::Pocket", "Pocket002")
pocket3.Profile = sketch6
pocket3.Type = "ThroughAll"
pocket3.Reversed = True

doc.recompute()
